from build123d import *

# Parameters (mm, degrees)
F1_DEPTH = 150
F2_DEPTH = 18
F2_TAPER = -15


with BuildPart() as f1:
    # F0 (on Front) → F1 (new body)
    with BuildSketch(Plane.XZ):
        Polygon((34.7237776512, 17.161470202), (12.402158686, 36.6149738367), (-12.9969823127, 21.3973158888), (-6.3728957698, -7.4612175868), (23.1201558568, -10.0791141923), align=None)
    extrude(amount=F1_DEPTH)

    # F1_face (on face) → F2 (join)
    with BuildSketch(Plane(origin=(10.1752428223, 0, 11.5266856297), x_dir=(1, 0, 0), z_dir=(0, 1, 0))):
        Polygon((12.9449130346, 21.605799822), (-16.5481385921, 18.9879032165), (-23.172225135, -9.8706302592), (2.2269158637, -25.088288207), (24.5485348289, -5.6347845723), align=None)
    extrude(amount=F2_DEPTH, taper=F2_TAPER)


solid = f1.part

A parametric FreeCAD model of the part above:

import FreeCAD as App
import Part
import Sketcher

V = App.Vector
Q = App.Units.Quantity

doc = App.newDocument("Part")
params = doc.addObject("Spreadsheet::Sheet", "Params")
for row, (alias, value) in enumerate([
    ("pad1_length", "150 mm"),
    ("pad2_length", "18 mm"),
    ("pad2_taper", "15 deg"),
], start=1):
    params.set(f"A{row}", alias)
    params.set(f"B{row}", "=" + value)
    params.setAlias(f"B{row}", alias)

body = doc.addObject("PartDesign::Body", "Body")

# Sketch on XZ plane
sketch1 = body.newObject("Sketcher::SketchObject", "Sketch")
sketch1.AttachmentSupport = (doc.getObject("XZ_Plane"), [""])
sketch1.MapMode = "FlatFace"
sketch1.addGeometry(Part.LineSegment(V(34.723778, 17.16147, 0), V(12.402159, 36.614974, 0)), False)
sketch1.addGeometry(Part.LineSegment(V(12.402159, 36.614974, 0), V(-12.996982, 21.397316, 0)), False)
sketch1.addGeometry(Part.LineSegment(V(-12.996982, 21.397316, 0), V(-6.372896, -7.461218, 0)), False)
sketch1.addGeometry(Part.LineSegment(V(-6.372896, -7.461218, 0), V(23.120156, -10.079114, 0)), False)
sketch1.addGeometry(Part.LineSegment(V(23.120156, -10.079114, 0), V(34.723778, 17.16147, 0)), False)
sketch1.addConstraint(Sketcher.Constraint("Coincident", 0, 2, 1, 1))
sketch1.addConstraint(Sketcher.Constraint("Coincident", 1, 2, 2, 1))
sketch1.addConstraint(Sketcher.Constraint("Coincident", 2, 2, 3, 1))
sketch1.addConstraint(Sketcher.Constraint("Coincident", 3, 2, 4, 1))
sketch1.addConstraint(Sketcher.Constraint("Coincident", 4, 2, 0, 1))
sketch1.addConstraint(Sketcher.Constraint("Equal", 0, 1))
sketch1.addConstraint(Sketcher.Constraint("Equal", 1, 2))
sketch1.addConstraint(Sketcher.Constraint("Equal", 2, 3))
sketch1.addConstraint(Sketcher.Constraint("Equal", 3, 4))
sketch1.addConstraint(Sketcher.Constraint("Distance", 0, Q("29.60901 mm")))
sketch1.addConstraint(Sketcher.Constraint("DistanceX", -1, 1, 0, 2, Q("12.402159 mm")))
sketch1.addConstraint(Sketcher.Constraint("DistanceY", -1, 1, 4, 2, Q("17.16147 mm")))
sketch1.addConstraint(Sketcher.Constraint("DistanceX", 1, 2, 0, 2, Q("25.399141 mm")))
sketch1.addConstraint(Sketcher.Constraint("DistanceY", 2, 2, 0, 2, Q("44.076191 mm")))
sketch1.addConstraint(Sketcher.Constraint("DistanceX", 2, 2, 3, 2, Q("29.493052 mm")))
pad1 = body.newObject("PartDesign::Pad", "Pad")
pad1.Profile = sketch1
pad1.setExpression("Length", "Params.pad1_length")

# Sketch on XZ plane
sketch2 = body.newObject("Sketcher::SketchObject", "Sketch001")
sketch2.AttachmentSupport = (doc.getObject("XZ_Plane"), [""])
sketch2.MapMode = "FlatFace"
sketch2.addGeometry(Part.LineSegment(V(23.120156, -10.079114, 0), V(-6.372896, -7.461218, 0)), False)
sketch2.addGeometry(Part.LineSegment(V(-6.372896, -7.461218, 0), V(-12.996982, 21.397316, 0)), False)
sketch2.addGeometry(Part.LineSegment(V(-12.996982, 21.397316, 0), V(12.402159, 36.614974, 0)), False)
sketch2.addGeometry(Part.LineSegment(V(12.402159, 36.614974, 0), V(34.723778, 17.16147, 0)), False)
sketch2.addGeometry(Part.LineSegment(V(34.723778, 17.16147, 0), V(23.120156, -10.079114, 0)), False)
sketch2.addConstraint(Sketcher.Constraint("Coincident", 0, 2, 1, 1))
sketch2.addConstraint(Sketcher.Constraint("Coincident", 1, 2, 2, 1))
sketch2.addConstraint(Sketcher.Constraint("Coincident", 2, 2, 3, 1))
sketch2.addConstraint(Sketcher.Constraint("Coincident", 3, 2, 4, 1))
sketch2.addConstraint(Sketcher.Constraint("Coincident", 4, 2, 0, 1))
sketch2.addConstraint(Sketcher.Constraint("Equal", 0, 1))
sketch2.addConstraint(Sketcher.Constraint("Equal", 1, 2))
sketch2.addConstraint(Sketcher.Constraint("Equal", 2, 3))
sketch2.addConstraint(Sketcher.Constraint("Equal", 3, 4))
sketch2.addConstraint(Sketcher.Constraint("Distance", 0, Q("29.60901 mm")))
sketch2.addConstraint(Sketcher.Constraint("DistanceX", -1, 1, 2, 2, Q("12.402159 mm")))
sketch2.addConstraint(Sketcher.Constraint("DistanceY", -1, 1, 3, 2, Q("17.16147 mm")))
sketch2.addConstraint(Sketcher.Constraint("DistanceX", 1, 2, 2, 2, Q("25.399141 mm")))
sketch2.addConstraint(Sketcher.Constraint("DistanceY", 0, 2, 2, 2, Q("44.076191 mm")))
sketch2.addConstraint(Sketcher.Constraint("DistanceX", 2, 2, 3, 2, Q("22.321619 mm")))
pad2 = body.newObject("PartDesign::Pad", "Pad001")
pad2.Profile = sketch2
pad2.setExpression("Length", "Params.pad2_length")
pad2.Reversed = True
pad2.setExpression("TaperAngle", "Params.pad2_taper")

doc.recompute()
